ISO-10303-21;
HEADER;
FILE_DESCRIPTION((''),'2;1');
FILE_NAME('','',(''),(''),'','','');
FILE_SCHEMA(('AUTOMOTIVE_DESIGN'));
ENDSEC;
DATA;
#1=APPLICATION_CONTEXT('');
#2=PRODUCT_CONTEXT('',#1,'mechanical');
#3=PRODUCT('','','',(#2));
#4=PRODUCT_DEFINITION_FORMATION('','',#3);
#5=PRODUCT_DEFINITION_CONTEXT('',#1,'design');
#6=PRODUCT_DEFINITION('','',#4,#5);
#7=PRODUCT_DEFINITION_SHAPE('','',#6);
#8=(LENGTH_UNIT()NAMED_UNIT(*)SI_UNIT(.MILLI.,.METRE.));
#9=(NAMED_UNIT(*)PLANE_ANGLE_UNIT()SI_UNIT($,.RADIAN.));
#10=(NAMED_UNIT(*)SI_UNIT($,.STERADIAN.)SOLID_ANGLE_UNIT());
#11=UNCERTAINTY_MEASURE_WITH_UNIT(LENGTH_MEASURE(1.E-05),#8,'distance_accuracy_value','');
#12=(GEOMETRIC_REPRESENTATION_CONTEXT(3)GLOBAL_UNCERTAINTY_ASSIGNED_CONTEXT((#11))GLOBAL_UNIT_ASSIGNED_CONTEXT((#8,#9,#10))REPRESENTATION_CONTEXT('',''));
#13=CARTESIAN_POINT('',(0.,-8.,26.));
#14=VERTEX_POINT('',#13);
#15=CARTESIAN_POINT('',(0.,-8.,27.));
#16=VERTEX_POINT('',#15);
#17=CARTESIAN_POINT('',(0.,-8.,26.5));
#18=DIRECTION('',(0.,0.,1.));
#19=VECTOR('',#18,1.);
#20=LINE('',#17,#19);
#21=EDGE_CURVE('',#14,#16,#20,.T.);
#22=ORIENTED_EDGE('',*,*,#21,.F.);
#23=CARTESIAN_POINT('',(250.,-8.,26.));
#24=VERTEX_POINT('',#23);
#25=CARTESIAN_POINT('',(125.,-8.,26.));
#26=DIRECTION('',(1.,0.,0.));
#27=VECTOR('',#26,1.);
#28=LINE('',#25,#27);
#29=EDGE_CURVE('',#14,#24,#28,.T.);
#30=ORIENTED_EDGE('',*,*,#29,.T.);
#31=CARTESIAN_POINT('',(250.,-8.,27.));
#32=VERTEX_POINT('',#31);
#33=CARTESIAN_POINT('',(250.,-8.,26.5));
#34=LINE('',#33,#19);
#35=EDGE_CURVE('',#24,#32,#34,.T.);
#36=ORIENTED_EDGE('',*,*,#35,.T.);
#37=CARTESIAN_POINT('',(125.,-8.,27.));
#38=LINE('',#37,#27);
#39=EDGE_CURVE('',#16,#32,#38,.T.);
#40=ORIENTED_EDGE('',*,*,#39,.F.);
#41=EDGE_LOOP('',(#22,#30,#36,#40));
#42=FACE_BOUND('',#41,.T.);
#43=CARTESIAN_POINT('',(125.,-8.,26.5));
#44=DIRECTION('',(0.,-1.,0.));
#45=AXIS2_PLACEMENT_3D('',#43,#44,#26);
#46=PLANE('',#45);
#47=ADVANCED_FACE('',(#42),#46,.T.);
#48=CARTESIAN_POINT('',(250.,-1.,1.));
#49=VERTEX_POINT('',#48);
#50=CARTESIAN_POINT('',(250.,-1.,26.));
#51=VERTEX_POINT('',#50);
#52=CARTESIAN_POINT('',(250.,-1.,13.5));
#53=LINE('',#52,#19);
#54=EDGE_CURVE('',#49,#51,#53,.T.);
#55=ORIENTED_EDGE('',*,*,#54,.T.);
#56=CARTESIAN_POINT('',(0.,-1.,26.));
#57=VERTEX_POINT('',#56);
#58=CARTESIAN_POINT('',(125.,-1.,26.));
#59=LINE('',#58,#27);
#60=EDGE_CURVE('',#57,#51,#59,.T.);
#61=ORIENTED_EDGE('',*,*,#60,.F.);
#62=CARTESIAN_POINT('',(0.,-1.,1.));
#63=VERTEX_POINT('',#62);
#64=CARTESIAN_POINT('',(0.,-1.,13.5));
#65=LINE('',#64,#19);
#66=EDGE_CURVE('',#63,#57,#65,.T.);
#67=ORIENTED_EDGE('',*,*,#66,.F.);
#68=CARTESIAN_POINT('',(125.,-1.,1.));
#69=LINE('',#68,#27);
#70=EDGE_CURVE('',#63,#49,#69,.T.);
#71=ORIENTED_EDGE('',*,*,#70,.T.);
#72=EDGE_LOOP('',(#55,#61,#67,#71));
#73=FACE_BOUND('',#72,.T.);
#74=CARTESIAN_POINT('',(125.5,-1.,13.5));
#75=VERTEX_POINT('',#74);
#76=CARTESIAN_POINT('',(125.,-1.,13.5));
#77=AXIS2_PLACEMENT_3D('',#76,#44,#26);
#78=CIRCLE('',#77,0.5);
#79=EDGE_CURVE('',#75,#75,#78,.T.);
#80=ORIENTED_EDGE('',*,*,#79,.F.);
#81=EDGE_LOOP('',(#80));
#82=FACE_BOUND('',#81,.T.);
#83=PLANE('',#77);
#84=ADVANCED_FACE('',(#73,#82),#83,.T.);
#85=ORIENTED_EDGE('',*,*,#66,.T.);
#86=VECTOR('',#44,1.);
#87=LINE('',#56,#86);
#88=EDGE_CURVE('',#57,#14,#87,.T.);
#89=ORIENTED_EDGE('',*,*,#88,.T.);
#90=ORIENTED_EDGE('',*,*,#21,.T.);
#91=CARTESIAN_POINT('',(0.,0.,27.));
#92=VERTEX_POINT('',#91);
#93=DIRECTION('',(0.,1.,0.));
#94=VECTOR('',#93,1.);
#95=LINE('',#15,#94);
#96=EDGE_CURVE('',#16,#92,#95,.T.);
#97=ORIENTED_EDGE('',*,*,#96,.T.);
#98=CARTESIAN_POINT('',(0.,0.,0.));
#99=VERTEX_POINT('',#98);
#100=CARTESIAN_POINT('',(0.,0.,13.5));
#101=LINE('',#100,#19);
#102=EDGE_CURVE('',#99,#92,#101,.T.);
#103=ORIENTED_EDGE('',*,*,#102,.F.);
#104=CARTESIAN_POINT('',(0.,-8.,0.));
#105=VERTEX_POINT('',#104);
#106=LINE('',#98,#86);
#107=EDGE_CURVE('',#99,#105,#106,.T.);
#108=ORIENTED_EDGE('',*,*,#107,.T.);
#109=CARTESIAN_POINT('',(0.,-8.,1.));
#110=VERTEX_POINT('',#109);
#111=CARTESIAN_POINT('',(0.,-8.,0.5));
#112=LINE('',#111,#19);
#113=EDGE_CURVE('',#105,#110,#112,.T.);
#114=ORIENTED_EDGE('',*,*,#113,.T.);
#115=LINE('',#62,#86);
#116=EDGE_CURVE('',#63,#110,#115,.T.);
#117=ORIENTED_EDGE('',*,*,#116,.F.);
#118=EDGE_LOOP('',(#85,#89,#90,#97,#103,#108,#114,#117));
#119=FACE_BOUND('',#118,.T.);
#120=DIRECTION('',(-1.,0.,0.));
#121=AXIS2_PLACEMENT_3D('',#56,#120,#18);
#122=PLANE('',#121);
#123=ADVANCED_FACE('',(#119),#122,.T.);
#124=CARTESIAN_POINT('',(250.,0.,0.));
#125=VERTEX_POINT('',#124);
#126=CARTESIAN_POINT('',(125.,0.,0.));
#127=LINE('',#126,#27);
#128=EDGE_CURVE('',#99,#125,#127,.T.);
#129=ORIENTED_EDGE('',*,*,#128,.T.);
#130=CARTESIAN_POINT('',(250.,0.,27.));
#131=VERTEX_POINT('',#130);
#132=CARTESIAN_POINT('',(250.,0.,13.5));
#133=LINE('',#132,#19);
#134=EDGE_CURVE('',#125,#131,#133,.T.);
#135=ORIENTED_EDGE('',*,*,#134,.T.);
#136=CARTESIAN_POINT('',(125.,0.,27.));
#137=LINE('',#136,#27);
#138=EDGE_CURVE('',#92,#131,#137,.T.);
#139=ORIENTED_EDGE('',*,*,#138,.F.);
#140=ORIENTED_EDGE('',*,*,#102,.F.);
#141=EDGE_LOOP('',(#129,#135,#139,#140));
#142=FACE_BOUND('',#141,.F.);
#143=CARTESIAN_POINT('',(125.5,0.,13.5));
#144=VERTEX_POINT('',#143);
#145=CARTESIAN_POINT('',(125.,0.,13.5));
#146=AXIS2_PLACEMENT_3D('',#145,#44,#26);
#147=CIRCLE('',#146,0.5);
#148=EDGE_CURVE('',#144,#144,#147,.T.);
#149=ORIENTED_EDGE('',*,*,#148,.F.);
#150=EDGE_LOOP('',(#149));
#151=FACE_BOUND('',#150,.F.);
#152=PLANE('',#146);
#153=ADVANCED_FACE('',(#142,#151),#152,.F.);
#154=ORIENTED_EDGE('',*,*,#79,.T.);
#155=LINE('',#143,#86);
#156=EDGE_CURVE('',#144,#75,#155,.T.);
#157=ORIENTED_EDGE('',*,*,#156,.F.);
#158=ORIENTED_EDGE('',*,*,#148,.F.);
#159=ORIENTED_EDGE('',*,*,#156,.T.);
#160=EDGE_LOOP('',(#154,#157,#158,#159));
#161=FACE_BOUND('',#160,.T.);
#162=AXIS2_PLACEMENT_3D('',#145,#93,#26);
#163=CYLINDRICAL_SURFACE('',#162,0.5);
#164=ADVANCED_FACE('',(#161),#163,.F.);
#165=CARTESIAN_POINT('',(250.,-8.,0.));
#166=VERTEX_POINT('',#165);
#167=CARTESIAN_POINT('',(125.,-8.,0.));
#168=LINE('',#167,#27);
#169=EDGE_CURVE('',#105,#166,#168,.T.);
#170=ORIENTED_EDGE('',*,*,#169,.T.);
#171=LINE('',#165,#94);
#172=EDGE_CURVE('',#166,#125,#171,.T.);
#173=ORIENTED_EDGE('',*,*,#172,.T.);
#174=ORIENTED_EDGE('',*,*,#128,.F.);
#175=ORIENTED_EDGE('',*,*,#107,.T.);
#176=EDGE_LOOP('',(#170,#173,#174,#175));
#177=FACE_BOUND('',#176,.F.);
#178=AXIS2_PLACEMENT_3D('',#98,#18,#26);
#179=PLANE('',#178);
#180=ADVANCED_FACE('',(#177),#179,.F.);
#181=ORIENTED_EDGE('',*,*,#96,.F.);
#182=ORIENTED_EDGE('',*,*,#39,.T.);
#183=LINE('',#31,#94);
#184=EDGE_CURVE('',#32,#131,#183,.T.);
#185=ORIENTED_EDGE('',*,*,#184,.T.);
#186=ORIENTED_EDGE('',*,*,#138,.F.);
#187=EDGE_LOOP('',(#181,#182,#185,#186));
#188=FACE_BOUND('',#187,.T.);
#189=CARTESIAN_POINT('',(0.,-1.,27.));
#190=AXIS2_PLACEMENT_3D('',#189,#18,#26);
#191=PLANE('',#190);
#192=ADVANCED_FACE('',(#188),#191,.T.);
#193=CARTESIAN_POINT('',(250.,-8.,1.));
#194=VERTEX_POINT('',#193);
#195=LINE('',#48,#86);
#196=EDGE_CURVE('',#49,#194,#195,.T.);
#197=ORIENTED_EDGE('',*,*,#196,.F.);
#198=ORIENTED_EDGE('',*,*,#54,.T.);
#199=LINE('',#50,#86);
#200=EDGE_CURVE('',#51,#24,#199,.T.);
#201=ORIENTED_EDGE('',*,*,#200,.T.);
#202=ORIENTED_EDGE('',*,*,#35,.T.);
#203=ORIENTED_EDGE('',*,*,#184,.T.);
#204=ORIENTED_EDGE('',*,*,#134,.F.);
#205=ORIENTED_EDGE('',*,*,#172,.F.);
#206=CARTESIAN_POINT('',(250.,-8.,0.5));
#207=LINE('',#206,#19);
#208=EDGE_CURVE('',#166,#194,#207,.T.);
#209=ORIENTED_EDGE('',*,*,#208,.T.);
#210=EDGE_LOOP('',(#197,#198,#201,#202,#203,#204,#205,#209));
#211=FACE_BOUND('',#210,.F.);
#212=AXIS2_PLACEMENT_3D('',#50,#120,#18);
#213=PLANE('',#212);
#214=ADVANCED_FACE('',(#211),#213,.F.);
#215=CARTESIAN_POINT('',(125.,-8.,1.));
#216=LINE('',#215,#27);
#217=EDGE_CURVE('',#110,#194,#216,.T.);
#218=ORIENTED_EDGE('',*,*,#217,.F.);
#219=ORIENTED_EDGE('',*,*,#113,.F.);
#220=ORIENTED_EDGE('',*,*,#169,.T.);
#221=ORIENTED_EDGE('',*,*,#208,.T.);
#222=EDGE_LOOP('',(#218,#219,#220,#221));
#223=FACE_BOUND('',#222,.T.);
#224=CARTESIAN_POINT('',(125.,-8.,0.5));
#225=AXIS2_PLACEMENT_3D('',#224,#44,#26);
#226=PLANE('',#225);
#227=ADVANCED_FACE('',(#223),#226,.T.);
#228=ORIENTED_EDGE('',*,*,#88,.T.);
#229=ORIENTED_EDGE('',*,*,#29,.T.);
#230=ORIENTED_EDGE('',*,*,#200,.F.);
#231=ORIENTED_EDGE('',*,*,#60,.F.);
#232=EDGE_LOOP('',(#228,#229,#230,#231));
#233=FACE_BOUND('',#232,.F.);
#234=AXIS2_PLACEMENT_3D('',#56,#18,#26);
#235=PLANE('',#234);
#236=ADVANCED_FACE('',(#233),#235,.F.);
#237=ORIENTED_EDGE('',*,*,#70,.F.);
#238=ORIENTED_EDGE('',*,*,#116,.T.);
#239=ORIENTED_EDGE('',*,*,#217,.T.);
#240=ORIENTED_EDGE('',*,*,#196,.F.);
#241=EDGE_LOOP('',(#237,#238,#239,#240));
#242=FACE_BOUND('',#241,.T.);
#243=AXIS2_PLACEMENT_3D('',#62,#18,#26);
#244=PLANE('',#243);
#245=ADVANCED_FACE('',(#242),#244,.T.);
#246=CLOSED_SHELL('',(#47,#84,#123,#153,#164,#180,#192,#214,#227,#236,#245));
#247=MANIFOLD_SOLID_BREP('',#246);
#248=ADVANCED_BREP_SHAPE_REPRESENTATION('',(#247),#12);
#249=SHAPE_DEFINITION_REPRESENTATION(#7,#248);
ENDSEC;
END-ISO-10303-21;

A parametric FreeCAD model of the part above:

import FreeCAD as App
import Part
import Sketcher
from FreeCAD import Vector

doc = App.newDocument("Part")
body = doc.addObject("PartDesign::Body", "Body")

# Sketch on XZ plane
sketch1 = doc.addObject("Sketcher::SketchObject", "Sketch")
body.addObject(sketch1)
sketch1.AttachmentSupport = (doc.XZ_Plane, [""])
sketch1.MapMode = "FlatFace"
sketch1.addGeometry([
    Part.LineSegment(Vector(0, 27, 0), Vector(0, 0, 0)),  # 0
    Part.LineSegment(Vector(0, 0, 0), Vector(250, 0, 0)),  # 1
    Part.LineSegment(Vector(250, 0, 0), Vector(250, 27, 0)),  # 2
    Part.LineSegment(Vector(250, 27, 0), Vector(0, 27, 0)),  # 3
    Part.Circle(Vector(125, 13.5, 0), Vector(0, 0, 1), 0.5),  # 4
], False)
sketch1.addConstraint([
    Sketcher.Constraint("Coincident", 0, 2, 1, 1),
    Sketcher.Constraint("Coincident", 1, 2, 2, 1),
    Sketcher.Constraint("Coincident", 2, 2, 3, 1),
    Sketcher.Constraint("Coincident", 3, 2, 0, 1),
    Sketcher.Constraint("Vertical", 0),
    Sketcher.Constraint("Horizontal", 1),
    Sketcher.Constraint("Vertical", 2),
    Sketcher.Constraint("Horizontal", 3),
    Sketcher.Constraint("Coincident", 0, 2, -1, 1),
    Sketcher.Constraint("Diameter", 4, 1.0),
    Sketcher.Constraint("DistanceX", 1, 1, 1, 2, 250.0),
    Sketcher.Constraint("DistanceY", 0, 2, 0, 1, 27.0),
    Sketcher.Constraint("DistanceX", -1, 1, 4, 3, 125.0),
    Sketcher.Constraint("DistanceY", -1, 1, 4, 3, 13.5),
])
pad1 = doc.addObject("PartDesign::Pad", "Pad")
body.addObject(pad1)
pad1.Profile = sketch1
pad1.Length = 1

# Sketch on XZ plane
sketch2 = doc.addObject("Sketcher::SketchObject", "Sketch001")
body.addObject(sketch2)
sketch2.AttachmentSupport = (doc.XZ_Plane, [""])
sketch2.MapMode = "FlatFace"
sketch2.AttachmentOffset = App.Placement(Vector(0, 0, 1), App.Rotation())
sketch2.addGeometry([
    Part.LineSegment(Vector(0, 27, 0), Vector(0, 26, 0)),  # 0
    Part.LineSegment(Vector(0, 26, 0), Vector(250, 26, 0)),  # 1
    Part.LineSegment(Vector(250, 26, 0), Vector(250, 27, 0)),  # 2
    Part.LineSegment(Vector(250, 27, 0), Vector(0, 27, 0)),  # 3
    Part.LineSegment(Vector(0, 1, 0), Vector(0, 0, 0)),  # 4
    Part.LineSegment(Vector(0, 0, 0), Vector(250, 0, 0)),  # 5
    Part.LineSegment(Vector(250, 0, 0), Vector(250, 1, 0)),  # 6
    Part.LineSegment(Vector(250, 1, 0), Vector(0, 1, 0)),  # 7
], False)
sketch2.addConstraint([
    Sketcher.Constraint("Coincident", 0, 2, 1, 1),
    Sketcher.Constraint("Coincident", 1, 2, 2, 1),
    Sketcher.Constraint("Coincident", 2, 2, 3, 1),
    Sketcher.Constraint("Coincident", 3, 2, 0, 1),
    Sketcher.Constraint("Coincident", 4, 2, 5, 1),
    Sketcher.Constraint("Coincident", 5, 2, 6, 1),
    Sketcher.Constraint("Coincident", 6, 2, 7, 1),
    Sketcher.Constraint("Coincident", 7, 2, 4, 1),
    Sketcher.Constraint("Vertical", 0),
    Sketcher.Constraint("Horizontal", 1),
    Sketcher.Constraint("Vertical", 2),
    Sketcher.Constraint("Horizontal", 3),
    Sketcher.Constraint("Vertical", 4),
    Sketcher.Constraint("Horizontal", 5),
    Sketcher.Constraint("Vertical", 6),
    Sketcher.Constraint("Horizontal", 7),
    Sketcher.Constraint("Coincident", 4, 2, -1, 1),
    Sketcher.Constraint("PointOnObject", 0, 2, -2),
    Sketcher.Constraint("Vertical", 2, 2, 5, 2),
    Sketcher.Constraint("Equal", 2, 4),
    Sketcher.Constraint("DistanceX", 1, 1, 1, 2, 250.0),
    Sketcher.Constraint("DistanceY", 0, 2, 0, 1, 1.0),
    Sketcher.Constraint("DistanceY", -1, 1, 0, 2, 26.0),
])
pad2 = doc.addObject("PartDesign::Pad", "Pad001")
body.addObject(pad2)
pad2.Profile = sketch2
pad2.Length = 7

doc.recompute()
